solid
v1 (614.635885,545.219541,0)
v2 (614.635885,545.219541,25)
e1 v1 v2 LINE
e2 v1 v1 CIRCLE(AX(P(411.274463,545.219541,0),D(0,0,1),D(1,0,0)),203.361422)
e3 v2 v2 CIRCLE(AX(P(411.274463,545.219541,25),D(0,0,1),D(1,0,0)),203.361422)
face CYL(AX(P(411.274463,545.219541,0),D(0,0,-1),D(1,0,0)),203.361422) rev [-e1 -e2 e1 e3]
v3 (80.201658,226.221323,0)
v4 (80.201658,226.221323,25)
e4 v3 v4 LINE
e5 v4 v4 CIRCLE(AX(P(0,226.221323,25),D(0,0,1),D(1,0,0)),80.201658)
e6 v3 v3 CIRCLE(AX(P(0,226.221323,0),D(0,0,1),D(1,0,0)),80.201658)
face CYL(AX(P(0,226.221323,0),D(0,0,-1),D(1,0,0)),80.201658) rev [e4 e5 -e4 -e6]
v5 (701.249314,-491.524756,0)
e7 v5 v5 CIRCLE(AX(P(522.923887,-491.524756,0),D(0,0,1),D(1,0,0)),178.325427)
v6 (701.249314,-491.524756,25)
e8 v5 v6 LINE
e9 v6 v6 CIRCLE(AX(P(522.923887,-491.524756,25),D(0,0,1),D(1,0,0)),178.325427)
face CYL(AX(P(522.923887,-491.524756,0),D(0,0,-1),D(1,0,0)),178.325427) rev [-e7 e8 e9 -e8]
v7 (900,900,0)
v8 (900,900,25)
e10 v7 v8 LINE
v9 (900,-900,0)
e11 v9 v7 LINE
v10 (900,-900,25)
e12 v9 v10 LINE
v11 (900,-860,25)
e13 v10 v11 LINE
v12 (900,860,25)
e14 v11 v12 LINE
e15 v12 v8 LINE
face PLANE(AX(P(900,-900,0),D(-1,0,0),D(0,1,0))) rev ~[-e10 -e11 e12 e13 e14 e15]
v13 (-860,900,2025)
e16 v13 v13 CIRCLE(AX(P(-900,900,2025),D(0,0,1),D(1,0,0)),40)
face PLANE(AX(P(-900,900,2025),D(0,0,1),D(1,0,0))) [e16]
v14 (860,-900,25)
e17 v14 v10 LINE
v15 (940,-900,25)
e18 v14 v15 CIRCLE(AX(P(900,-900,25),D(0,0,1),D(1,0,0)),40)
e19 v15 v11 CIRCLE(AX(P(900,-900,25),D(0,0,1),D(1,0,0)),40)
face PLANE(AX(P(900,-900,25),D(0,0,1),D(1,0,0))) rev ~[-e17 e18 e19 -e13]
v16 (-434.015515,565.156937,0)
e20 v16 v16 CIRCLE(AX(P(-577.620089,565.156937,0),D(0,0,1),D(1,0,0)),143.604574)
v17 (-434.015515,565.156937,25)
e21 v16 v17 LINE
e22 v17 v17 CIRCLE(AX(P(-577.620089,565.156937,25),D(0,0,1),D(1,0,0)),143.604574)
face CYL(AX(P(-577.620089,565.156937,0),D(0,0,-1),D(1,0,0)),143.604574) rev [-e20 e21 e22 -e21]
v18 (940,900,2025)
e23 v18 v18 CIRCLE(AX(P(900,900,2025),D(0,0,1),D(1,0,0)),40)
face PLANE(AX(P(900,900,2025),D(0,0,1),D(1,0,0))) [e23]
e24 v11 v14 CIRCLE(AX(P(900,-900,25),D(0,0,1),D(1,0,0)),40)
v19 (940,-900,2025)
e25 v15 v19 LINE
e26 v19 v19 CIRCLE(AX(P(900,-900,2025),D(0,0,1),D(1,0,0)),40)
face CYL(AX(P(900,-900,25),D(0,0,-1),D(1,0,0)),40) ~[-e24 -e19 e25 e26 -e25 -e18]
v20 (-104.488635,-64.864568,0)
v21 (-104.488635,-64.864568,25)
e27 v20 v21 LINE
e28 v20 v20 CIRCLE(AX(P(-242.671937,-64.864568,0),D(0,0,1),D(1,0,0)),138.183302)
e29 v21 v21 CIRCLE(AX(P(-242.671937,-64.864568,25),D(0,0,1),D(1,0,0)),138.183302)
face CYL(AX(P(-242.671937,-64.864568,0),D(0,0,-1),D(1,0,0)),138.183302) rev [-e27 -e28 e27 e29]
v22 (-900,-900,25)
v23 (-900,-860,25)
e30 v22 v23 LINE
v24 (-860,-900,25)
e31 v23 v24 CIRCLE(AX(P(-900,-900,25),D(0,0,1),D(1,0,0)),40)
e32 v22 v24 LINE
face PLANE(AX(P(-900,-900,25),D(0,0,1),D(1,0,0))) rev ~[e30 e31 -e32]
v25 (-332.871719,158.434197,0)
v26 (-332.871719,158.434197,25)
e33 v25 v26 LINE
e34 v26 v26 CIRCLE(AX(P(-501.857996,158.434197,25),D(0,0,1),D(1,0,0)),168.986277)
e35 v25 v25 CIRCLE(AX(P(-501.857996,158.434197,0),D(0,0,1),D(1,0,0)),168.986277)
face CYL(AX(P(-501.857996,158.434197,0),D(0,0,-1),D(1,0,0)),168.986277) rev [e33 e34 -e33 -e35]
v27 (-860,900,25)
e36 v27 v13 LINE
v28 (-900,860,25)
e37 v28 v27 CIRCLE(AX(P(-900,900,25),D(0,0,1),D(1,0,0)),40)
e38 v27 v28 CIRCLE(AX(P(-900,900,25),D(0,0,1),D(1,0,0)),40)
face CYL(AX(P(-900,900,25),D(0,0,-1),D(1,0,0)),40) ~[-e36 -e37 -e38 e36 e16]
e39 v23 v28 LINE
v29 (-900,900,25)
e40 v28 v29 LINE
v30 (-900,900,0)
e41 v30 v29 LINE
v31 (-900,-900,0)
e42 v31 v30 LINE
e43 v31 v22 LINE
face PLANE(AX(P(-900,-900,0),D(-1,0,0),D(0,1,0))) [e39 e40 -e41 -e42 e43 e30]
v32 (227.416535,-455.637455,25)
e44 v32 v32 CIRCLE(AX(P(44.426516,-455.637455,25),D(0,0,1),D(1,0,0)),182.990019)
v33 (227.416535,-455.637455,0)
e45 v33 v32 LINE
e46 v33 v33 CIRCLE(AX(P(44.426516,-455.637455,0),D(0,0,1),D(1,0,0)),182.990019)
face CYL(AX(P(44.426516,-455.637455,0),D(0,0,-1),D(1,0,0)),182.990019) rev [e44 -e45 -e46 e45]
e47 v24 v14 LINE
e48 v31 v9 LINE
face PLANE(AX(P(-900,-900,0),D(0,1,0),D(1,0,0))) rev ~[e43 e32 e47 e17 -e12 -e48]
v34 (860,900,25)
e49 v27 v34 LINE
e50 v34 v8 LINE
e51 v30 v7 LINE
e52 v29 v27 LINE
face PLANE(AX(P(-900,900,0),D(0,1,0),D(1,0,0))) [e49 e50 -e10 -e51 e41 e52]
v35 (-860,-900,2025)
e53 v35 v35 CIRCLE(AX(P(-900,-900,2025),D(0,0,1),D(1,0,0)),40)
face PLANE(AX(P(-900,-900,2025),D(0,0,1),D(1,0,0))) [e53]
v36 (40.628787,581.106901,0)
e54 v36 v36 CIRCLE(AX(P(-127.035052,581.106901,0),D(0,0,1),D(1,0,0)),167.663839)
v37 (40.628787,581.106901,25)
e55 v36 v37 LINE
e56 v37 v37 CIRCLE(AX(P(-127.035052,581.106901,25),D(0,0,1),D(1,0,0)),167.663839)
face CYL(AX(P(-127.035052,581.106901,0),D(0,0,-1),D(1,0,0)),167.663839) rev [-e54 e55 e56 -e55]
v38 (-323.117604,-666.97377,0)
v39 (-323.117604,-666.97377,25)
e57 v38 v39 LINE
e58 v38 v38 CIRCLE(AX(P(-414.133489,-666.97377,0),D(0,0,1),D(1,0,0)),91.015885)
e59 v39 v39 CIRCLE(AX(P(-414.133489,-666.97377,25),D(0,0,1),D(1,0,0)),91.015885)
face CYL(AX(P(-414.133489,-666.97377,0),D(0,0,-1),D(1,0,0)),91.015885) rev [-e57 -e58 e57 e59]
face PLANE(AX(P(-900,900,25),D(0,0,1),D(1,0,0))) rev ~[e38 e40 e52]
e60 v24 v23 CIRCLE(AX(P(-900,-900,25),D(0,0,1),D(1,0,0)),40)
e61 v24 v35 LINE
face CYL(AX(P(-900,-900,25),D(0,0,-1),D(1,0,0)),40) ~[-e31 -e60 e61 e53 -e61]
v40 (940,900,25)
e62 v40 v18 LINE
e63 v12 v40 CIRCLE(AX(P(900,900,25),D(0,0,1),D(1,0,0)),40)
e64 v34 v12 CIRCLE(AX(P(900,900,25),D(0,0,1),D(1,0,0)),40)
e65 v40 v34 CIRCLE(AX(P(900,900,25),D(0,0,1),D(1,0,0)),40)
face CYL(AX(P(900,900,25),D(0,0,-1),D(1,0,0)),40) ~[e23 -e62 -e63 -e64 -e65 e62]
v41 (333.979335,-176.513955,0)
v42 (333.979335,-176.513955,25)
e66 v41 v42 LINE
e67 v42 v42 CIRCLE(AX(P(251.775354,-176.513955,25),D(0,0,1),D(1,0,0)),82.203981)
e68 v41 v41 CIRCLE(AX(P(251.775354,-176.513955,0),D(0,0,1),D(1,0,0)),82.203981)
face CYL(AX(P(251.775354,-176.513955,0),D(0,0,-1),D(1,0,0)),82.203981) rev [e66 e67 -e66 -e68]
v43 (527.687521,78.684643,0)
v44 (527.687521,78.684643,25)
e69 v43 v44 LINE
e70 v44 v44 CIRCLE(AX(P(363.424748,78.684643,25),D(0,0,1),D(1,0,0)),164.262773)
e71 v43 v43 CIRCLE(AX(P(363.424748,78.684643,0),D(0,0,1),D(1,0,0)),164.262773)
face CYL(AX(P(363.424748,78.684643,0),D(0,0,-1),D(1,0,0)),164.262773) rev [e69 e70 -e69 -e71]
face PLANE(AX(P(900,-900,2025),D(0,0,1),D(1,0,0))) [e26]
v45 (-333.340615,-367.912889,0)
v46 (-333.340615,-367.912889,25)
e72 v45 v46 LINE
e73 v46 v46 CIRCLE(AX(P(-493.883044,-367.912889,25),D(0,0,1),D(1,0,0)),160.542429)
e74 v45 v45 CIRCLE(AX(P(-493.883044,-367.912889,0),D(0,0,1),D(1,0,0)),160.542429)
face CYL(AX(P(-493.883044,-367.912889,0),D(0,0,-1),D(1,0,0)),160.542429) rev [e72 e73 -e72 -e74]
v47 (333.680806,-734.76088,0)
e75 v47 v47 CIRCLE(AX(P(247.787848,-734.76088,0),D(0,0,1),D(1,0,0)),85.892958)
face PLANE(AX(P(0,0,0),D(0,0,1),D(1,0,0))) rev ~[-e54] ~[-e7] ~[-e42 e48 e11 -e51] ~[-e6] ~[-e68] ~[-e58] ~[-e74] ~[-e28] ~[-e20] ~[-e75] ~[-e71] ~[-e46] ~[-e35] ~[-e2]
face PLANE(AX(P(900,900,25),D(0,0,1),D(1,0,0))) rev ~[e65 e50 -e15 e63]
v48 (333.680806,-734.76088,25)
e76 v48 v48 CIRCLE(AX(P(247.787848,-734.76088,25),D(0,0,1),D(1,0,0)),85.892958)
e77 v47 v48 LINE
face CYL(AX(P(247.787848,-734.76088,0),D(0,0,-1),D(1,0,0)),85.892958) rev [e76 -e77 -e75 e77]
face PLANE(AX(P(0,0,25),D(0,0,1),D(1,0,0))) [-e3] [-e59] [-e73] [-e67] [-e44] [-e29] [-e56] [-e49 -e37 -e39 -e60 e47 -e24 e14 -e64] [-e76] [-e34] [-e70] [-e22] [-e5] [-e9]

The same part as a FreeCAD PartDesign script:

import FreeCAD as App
import Part
import Sketcher

V = App.Vector
Q = App.Units.Quantity

doc = App.newDocument("Part")
params = doc.addObject("Spreadsheet::Sheet", "Params")
for row, (alias, value) in enumerate([
    ("sketch1_width", "1800 mm"),
    ("pad1_length", "25 mm"),
    ("sketch2_diameter", "80 mm"),
    ("pad2_length", "2000 mm"),
], start=1):
    params.set(f"A{row}", alias)
    params.set(f"B{row}", "=" + value)
    params.setAlias(f"B{row}", alias)

body = doc.addObject("PartDesign::Body", "Body")

# Sketch on XY plane
sketch1 = body.newObject("Sketcher::SketchObject", "Sketch")
sketch1.AttachmentSupport = (doc.getObject("XY_Plane"), [""])
sketch1.MapMode = "FlatFace"
sketch1.addGeometry(Part.LineSegment(V(-900, 900, 0), V(-900, -900, 0)), False)
sketch1.addGeometry(Part.LineSegment(V(-900, -900, 0), V(900, -900, 0)), False)
sketch1.addGeometry(Part.LineSegment(V(900, -900, 0), V(900, 900, 0)), False)
sketch1.addGeometry(Part.LineSegment(V(900, 900, 0), V(-900, 900, 0)), False)
sketch1.addGeometry(Part.Circle(V(-414.133489, -666.97377, 0), V(0, 0, 1), 91.015885), False)
sketch1.addGeometry(Part.Circle(V(-493.883044, -367.912889, 0), V(0, 0, 1), 160.542429), False)
sketch1.addGeometry(Part.Circle(V(-242.671937, -64.864568, 0), V(0, 0, 1), 138.183302), False)
sketch1.addGeometry(Part.Circle(V(247.787848, -734.76088, 0), V(0, 0, 1), 85.892958), False)
sketch1.addGeometry(Part.Circle(V(44.426516, -455.637455, 0), V(0, 0, 1), 182.990019), False)
sketch1.addGeometry(Part.Circle(V(522.923887, -491.524756, 0), V(0, 0, 1), 178.325427), False)
sketch1.addGeometry(Part.Circle(V(251.775354, -176.513955, 0), V(0, 0, 1), 82.203981), False)
sketch1.addGeometry(Part.Circle(V(-501.857996, 158.434197, 0), V(0, 0, 1), 168.986277), False)
sketch1.addGeometry(Part.Circle(V(-577.620089, 565.156937, 0), V(0, 0, 1), 143.604574), False)
sketch1.addGeometry(Part.Circle(V(-127.035052, 581.106901, 0), V(0, 0, 1), 167.663839), False)
sketch1.addGeometry(Part.Circle(V(0, 226.221323, 0), V(0, 0, 1), 80.201658), False)
sketch1.addGeometry(Part.Circle(V(363.424748, 78.684643, 0), V(0, 0, 1), 164.262773), False)
sketch1.addGeometry(Part.Circle(V(411.274463, 545.219541, 0), V(0, 0, 1), 203.361422), False)
sketch1.addConstraint(Sketcher.Constraint("Coincident", 0, 2, 1, 1))
sketch1.addConstraint(Sketcher.Constraint("Coincident", 1, 2, 2, 1))
sketch1.addConstraint(Sketcher.Constraint("Coincident", 2, 2, 3, 1))
sketch1.addConstraint(Sketcher.Constraint("Coincident", 3, 2, 0, 1))
sketch1.addConstraint(Sketcher.Constraint("Vertical", 0))
sketch1.addConstraint(Sketcher.Constraint("Horizontal", 1))
sketch1.addConstraint(Sketcher.Constraint("Vertical", 2))
sketch1.addConstraint(Sketcher.Constraint("Horizontal", 3))
sketch1.addConstraint(Sketcher.Constraint("Symmetric", 0, 2, 2, 2, -1, 1))
sketch1.addConstraint(Sketcher.Constraint("PointOnObject", 14, 3, -2))
sketch1.addConstraint(Sketcher.Constraint("Equal", 3, 0))
sketch1.addConstraint(Sketcher.Constraint("DistanceX", 1, 1, 1, 2, Q("1800 mm")))
sketch1.addConstraint(Sketcher.Constraint("Diameter", 4, Q("182.03177 mm")))
sketch1.addConstraint(Sketcher.Constraint("Diameter", 5, Q("321.084858 mm")))
sketch1.addConstraint(Sketcher.Constraint("Diameter", 8, Q("365.980038 mm")))
sketch1.addConstraint(Sketcher.Constraint("Diameter", 10, Q("164.407962 mm")))
sketch1.addConstraint(Sketcher.Constraint("Diameter", 12, Q("287.209148 mm")))
sketch1.addConstraint(Sketcher.Constraint("Diameter", 13, Q("335.327678 mm")))
sketch1.addConstraint(Sketcher.Constraint("Diameter", 6, Q("276.366604 mm")))
sketch1.addConstraint(Sketcher.Constraint("Diameter", 7, Q("171.785916 mm")))
sketch1.addConstraint(Sketcher.Constraint("Diameter", 9, Q("356.650854 mm")))
sketch1.addConstraint(Sketcher.Constraint("Diameter", 11, Q("337.972554 mm")))
sketch1.addConstraint(Sketcher.Constraint("Diameter", 14, Q("160.403316 mm")))
sketch1.addConstraint(Sketcher.Constraint("Diameter", 15, Q("328.525546 mm")))
sketch1.addConstraint(Sketcher.Constraint("Diameter", 16, Q("406.722844 mm")))
sketch1.addConstraint(Sketcher.Constraint("DistanceY", -1, 1, 13, 3, Q("581.106901 mm")))
sketch1.addConstraint(Sketcher.Constraint("DistanceY", 4, 3, 6, 3, Q("602.109202 mm")))
sketch1.addConstraint(Sketcher.Constraint("DistanceY", 9, 3, 8, 3, Q("35.887301 mm")))
sketch1.addConstraint(Sketcher.Constraint("DistanceY", 8, 3, 10, 3, Q("279.1235 mm")))
sketch1.addConstraint(Sketcher.Constraint("DistanceX", 5, 3, 10, 3, Q("745.658398 mm")))
sketch1.addConstraint(Sketcher.Constraint("DistanceY", 10, 3, 15, 3, Q("255.198598 mm")))
sketch1.addConstraint(Sketcher.Constraint("DistanceY", 15, 3, 16, 3, Q("466.534898 mm")))
sketch1.addConstraint(Sketcher.Constraint("DistanceX", 6, 3, 16, 3, Q("653.9464 mm")))
sketch1.addConstraint(Sketcher.Constraint("DistanceX", 4, 3, -1, 1, Q("414.133489 mm")))
sketch1.addConstraint(Sketcher.Constraint("DistanceY", 4, 3, -1, 1, Q("666.97377 mm")))
sketch1.addConstraint(Sketcher.Constraint("DistanceY", 5, 3, -1, 1, Q("367.912889 mm")))
sketch1.addConstraint(Sketcher.Constraint("DistanceX", -1, 1, 7, 3, Q("247.787848 mm")))
sketch1.addConstraint(Sketcher.Constraint("DistanceY", 7, 3, -1, 1, Q("734.76088 mm")))
sketch1.addConstraint(Sketcher.Constraint("DistanceX", 12, 3, -1, 1, Q("577.620089 mm")))
sketch1.addConstraint(Sketcher.Constraint("DistanceX", 13, 3, -1, 1, Q("127.035052 mm")))
sketch1.addConstraint(Sketcher.Constraint("DistanceX", -1, 1, 15, 3, Q("363.424748 mm")))
sketch1.addConstraint(Sketcher.Constraint("DistanceY", -1, 1, 16, 3, Q("545.219541 mm")))
sketch1.addConstraint(Sketcher.Constraint("DistanceX", 4, 3, 6, 3, Q("171.461552 mm")))
sketch1.addConstraint(Sketcher.Constraint("DistanceX", 5, 3, 7, 3, Q("741.670892 mm")))
sketch1.addConstraint(Sketcher.Constraint("DistanceX", 8, 3, 7, 3, Q("203.361332 mm")))
sketch1.addConstraint(Sketcher.Constraint("DistanceX", 7, 3, 9, 3, Q("275.136039 mm")))
sketch1.addConstraint(Sketcher.Constraint("DistanceX", 11, 3, 6, 3, Q("259.186059 mm")))
sketch1.addConstraint(Sketcher.Constraint("DistanceY", 8, 3, 11, 3, Q("614.071652 mm")))
sketch1.addConstraint(Sketcher.Constraint("DistanceY", 11, 3, 12, 3, Q("406.72274 mm")))
sketch1.addConstraint(Sketcher.Constraint("DistanceY", 14, 3, 13, 3, Q("354.885578 mm")))
sketch1.setExpression("Constraints[11]", "Params.sketch1_width")
pad1 = body.newObject("PartDesign::Pad", "Pad")
pad1.Profile = sketch1
pad1.setExpression("Length", "Params.pad1_length")

# Sketch on XY plane
sketch2 = body.newObject("Sketcher::SketchObject", "Sketch001")
sketch2.AttachmentSupport = (doc.getObject("XY_Plane"), [""])
sketch2.MapMode = "FlatFace"
sketch2.AttachmentOffset = App.Placement(V(0, 0, 25), App.Rotation())
sketch2.addGeometry(Part.Circle(V(900, 900, 0), V(0, 0, 1), 40), False)
sketch2.addGeometry(Part.Circle(V(900, -900, 0), V(0, 0, 1), 40), False)
sketch2.addGeometry(Part.Circle(V(-900, 900, 0), V(0, 0, 1), 40), False)
sketch2.addGeometry(Part.Circle(V(-900, -900, 0), V(0, 0, 1), 40), False)
sketch2.addConstraint(Sketcher.Constraint("Equal", 0, 1))
sketch2.addConstraint(Sketcher.Constraint("Equal", 1, 2))
sketch2.addConstraint(Sketcher.Constraint("Equal", 2, 3))
sketch2.addConstraint(Sketcher.Constraint("Symmetric", 1, 3, 2, 3, -1, 1))
sketch2.addConstraint(Sketcher.Constraint("Symmetric", 0, 3, 3, 3, -1, 1))
sketch2.addConstraint(Sketcher.Constraint("Symmetric", 0, 3, 2, 3, -2))
sketch2.addConstraint(Sketcher.Constraint("Diameter", 0, Q("80 mm")))
sketch2.addConstraint(Sketcher.Constraint("DistanceX", -1, 1, 0, 3, Q("900 mm")))
sketch2.addConstraint(Sketcher.Constraint("DistanceY", -1, 1, 0, 3, Q("900 mm")))
sketch2.setExpression("Constraints[6]", "Params.sketch2_diameter")
pad2 = body.newObject("PartDesign::Pad", "Pad001")
pad2.Profile = sketch2
pad2.setExpression("Length", "Params.pad2_length")

doc.recompute()
